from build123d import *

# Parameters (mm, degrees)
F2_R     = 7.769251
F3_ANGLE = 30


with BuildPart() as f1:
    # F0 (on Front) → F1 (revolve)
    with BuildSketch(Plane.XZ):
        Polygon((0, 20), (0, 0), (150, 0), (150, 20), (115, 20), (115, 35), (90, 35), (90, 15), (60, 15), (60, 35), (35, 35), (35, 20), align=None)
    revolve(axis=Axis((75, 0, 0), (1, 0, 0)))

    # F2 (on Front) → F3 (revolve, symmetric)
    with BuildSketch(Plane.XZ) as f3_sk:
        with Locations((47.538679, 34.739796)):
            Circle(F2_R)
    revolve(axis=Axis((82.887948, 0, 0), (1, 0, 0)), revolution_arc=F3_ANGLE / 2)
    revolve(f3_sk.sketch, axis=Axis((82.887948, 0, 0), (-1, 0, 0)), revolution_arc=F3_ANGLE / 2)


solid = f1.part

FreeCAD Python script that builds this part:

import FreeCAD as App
import Part
import Sketcher

V = App.Vector
Q = App.Units.Quantity


def add_polygon(sketch, points):
    """Adds a closed chain of lines whose ends are joined by coincident constraints."""
    first, n = sketch.GeometryCount, len(points)
    for a, b in zip(points, points[1:] + points[:1]):
        sketch.addGeometry(Part.LineSegment(App.Vector(*a, 0), App.Vector(*b, 0)), False)
    for i in range(n):
        sketch.addConstraint(Sketcher.Constraint("Coincident", first + i, 2, first + (i + 1) % n, 1))

doc = App.newDocument("Part")
body = doc.addObject("PartDesign::Body", "Body")

# Sketch on XZ plane
sketch1 = body.newObject("Sketcher::SketchObject", "Sketch")
sketch1.AttachmentSupport = (doc.getObject("XZ_Plane"), [""])
sketch1.MapMode = "FlatFace"
add_polygon(sketch1, [(0, 20), (0, 0), (150, 0), (150, 20), (115, 20), (115, 35), (90, 35), (90, 15), (60, 15), (60, 35), (35, 35), (35, 20)])  # lines 0-11
sketch1.addConstraint([
    Sketcher.Constraint("Vertical", 0),
    Sketcher.Constraint("Horizontal", 1),
    Sketcher.Constraint("Vertical", 2),
    Sketcher.Constraint("Horizontal", 3),
    Sketcher.Constraint("Vertical", 4),
    Sketcher.Constraint("Horizontal", 5),
    Sketcher.Constraint("Vertical", 6),
    Sketcher.Constraint("Horizontal", 7),
    Sketcher.Constraint("Vertical", 8),
    Sketcher.Constraint("Horizontal", 9),
    Sketcher.Constraint("Vertical", 10),
    Sketcher.Constraint("Horizontal", 11),
    Sketcher.Constraint("Coincident", 0, 2, -1, 1),
    Sketcher.Constraint("Horizontal", 5, 2, 8, 2),
    Sketcher.Constraint("Horizontal", 3, 2, 10, 2),
    Sketcher.Constraint("Equal", 5, 9),
    Sketcher.Constraint("Equal", 3, 11),
    Sketcher.Constraint("Equal", 2, 6),
    Sketcher.Constraint("DistanceX", 1, 1, 1, 2, Q("150 mm")),
    Sketcher.Constraint("DistanceX", 3, 2, 3, 1, Q("35 mm")),
    Sketcher.Constraint("DistanceX", 5, 2, 5, 1, Q("25 mm")),
    Sketcher.Constraint("DistanceY", 0, 2, 0, 1, Q("20 mm")),
    Sketcher.Constraint("DistanceY", 4, 1, 4, 2, Q("15 mm")),
])
revolution = body.newObject("PartDesign::Revolution", "Revolution")
revolution.Profile = sketch1
revolution.ReferenceAxis = (sketch1, ["H_Axis"])
revolution.Angle = 360

# Sketch on XZ plane
sketch2 = body.newObject("Sketcher::SketchObject", "Sketch001")
sketch2.AttachmentSupport = (doc.getObject("XZ_Plane"), [""])
sketch2.MapMode = "FlatFace"
sketch2.addGeometry(Part.Circle(V(47.538679, 34.739796, 0), V(0, 0, 1), 7.769251), False)
sketch2.addConstraint([
    Sketcher.Constraint("Diameter", 0, Q("15.538502 mm")),
    Sketcher.Constraint("DistanceX", -1, 1, 0, 3, Q("47.538679 mm")),
    Sketcher.Constraint("DistanceY", -1, 1, 0, 3, Q("34.739796 mm")),
])
revolution2 = body.newObject("PartDesign::Revolution", "Revolution001")
revolution2.Profile = sketch2
revolution2.ReferenceAxis = (sketch2, ["H_Axis"])
revolution2.Angle = 15

# Sketch on XZ plane
sketch3 = body.newObject("Sketcher::SketchObject", "Sketch002")
sketch3.AttachmentSupport = (doc.getObject("XZ_Plane"), [""])
sketch3.MapMode = "FlatFace"
sketch3.addGeometry(Part.Circle(V(47.538679, 34.739796, 0), V(0, 0, 1), 7.769251), False)
sketch3.addConstraint([
    Sketcher.Constraint("Diameter", 0, Q("15.538502 mm")),
    Sketcher.Constraint("DistanceX", -1, 1, 0, 3, Q("47.538679 mm")),
    Sketcher.Constraint("DistanceY", -1, 1, 0, 3, Q("34.739796 mm")),
])
revolution3 = body.newObject("PartDesign::Revolution", "Revolution002")
revolution3.Profile = sketch3
revolution3.ReferenceAxis = (sketch3, ["H_Axis"])
revolution3.Angle = 15
revolution3.Reversed = True

doc.recompute()
